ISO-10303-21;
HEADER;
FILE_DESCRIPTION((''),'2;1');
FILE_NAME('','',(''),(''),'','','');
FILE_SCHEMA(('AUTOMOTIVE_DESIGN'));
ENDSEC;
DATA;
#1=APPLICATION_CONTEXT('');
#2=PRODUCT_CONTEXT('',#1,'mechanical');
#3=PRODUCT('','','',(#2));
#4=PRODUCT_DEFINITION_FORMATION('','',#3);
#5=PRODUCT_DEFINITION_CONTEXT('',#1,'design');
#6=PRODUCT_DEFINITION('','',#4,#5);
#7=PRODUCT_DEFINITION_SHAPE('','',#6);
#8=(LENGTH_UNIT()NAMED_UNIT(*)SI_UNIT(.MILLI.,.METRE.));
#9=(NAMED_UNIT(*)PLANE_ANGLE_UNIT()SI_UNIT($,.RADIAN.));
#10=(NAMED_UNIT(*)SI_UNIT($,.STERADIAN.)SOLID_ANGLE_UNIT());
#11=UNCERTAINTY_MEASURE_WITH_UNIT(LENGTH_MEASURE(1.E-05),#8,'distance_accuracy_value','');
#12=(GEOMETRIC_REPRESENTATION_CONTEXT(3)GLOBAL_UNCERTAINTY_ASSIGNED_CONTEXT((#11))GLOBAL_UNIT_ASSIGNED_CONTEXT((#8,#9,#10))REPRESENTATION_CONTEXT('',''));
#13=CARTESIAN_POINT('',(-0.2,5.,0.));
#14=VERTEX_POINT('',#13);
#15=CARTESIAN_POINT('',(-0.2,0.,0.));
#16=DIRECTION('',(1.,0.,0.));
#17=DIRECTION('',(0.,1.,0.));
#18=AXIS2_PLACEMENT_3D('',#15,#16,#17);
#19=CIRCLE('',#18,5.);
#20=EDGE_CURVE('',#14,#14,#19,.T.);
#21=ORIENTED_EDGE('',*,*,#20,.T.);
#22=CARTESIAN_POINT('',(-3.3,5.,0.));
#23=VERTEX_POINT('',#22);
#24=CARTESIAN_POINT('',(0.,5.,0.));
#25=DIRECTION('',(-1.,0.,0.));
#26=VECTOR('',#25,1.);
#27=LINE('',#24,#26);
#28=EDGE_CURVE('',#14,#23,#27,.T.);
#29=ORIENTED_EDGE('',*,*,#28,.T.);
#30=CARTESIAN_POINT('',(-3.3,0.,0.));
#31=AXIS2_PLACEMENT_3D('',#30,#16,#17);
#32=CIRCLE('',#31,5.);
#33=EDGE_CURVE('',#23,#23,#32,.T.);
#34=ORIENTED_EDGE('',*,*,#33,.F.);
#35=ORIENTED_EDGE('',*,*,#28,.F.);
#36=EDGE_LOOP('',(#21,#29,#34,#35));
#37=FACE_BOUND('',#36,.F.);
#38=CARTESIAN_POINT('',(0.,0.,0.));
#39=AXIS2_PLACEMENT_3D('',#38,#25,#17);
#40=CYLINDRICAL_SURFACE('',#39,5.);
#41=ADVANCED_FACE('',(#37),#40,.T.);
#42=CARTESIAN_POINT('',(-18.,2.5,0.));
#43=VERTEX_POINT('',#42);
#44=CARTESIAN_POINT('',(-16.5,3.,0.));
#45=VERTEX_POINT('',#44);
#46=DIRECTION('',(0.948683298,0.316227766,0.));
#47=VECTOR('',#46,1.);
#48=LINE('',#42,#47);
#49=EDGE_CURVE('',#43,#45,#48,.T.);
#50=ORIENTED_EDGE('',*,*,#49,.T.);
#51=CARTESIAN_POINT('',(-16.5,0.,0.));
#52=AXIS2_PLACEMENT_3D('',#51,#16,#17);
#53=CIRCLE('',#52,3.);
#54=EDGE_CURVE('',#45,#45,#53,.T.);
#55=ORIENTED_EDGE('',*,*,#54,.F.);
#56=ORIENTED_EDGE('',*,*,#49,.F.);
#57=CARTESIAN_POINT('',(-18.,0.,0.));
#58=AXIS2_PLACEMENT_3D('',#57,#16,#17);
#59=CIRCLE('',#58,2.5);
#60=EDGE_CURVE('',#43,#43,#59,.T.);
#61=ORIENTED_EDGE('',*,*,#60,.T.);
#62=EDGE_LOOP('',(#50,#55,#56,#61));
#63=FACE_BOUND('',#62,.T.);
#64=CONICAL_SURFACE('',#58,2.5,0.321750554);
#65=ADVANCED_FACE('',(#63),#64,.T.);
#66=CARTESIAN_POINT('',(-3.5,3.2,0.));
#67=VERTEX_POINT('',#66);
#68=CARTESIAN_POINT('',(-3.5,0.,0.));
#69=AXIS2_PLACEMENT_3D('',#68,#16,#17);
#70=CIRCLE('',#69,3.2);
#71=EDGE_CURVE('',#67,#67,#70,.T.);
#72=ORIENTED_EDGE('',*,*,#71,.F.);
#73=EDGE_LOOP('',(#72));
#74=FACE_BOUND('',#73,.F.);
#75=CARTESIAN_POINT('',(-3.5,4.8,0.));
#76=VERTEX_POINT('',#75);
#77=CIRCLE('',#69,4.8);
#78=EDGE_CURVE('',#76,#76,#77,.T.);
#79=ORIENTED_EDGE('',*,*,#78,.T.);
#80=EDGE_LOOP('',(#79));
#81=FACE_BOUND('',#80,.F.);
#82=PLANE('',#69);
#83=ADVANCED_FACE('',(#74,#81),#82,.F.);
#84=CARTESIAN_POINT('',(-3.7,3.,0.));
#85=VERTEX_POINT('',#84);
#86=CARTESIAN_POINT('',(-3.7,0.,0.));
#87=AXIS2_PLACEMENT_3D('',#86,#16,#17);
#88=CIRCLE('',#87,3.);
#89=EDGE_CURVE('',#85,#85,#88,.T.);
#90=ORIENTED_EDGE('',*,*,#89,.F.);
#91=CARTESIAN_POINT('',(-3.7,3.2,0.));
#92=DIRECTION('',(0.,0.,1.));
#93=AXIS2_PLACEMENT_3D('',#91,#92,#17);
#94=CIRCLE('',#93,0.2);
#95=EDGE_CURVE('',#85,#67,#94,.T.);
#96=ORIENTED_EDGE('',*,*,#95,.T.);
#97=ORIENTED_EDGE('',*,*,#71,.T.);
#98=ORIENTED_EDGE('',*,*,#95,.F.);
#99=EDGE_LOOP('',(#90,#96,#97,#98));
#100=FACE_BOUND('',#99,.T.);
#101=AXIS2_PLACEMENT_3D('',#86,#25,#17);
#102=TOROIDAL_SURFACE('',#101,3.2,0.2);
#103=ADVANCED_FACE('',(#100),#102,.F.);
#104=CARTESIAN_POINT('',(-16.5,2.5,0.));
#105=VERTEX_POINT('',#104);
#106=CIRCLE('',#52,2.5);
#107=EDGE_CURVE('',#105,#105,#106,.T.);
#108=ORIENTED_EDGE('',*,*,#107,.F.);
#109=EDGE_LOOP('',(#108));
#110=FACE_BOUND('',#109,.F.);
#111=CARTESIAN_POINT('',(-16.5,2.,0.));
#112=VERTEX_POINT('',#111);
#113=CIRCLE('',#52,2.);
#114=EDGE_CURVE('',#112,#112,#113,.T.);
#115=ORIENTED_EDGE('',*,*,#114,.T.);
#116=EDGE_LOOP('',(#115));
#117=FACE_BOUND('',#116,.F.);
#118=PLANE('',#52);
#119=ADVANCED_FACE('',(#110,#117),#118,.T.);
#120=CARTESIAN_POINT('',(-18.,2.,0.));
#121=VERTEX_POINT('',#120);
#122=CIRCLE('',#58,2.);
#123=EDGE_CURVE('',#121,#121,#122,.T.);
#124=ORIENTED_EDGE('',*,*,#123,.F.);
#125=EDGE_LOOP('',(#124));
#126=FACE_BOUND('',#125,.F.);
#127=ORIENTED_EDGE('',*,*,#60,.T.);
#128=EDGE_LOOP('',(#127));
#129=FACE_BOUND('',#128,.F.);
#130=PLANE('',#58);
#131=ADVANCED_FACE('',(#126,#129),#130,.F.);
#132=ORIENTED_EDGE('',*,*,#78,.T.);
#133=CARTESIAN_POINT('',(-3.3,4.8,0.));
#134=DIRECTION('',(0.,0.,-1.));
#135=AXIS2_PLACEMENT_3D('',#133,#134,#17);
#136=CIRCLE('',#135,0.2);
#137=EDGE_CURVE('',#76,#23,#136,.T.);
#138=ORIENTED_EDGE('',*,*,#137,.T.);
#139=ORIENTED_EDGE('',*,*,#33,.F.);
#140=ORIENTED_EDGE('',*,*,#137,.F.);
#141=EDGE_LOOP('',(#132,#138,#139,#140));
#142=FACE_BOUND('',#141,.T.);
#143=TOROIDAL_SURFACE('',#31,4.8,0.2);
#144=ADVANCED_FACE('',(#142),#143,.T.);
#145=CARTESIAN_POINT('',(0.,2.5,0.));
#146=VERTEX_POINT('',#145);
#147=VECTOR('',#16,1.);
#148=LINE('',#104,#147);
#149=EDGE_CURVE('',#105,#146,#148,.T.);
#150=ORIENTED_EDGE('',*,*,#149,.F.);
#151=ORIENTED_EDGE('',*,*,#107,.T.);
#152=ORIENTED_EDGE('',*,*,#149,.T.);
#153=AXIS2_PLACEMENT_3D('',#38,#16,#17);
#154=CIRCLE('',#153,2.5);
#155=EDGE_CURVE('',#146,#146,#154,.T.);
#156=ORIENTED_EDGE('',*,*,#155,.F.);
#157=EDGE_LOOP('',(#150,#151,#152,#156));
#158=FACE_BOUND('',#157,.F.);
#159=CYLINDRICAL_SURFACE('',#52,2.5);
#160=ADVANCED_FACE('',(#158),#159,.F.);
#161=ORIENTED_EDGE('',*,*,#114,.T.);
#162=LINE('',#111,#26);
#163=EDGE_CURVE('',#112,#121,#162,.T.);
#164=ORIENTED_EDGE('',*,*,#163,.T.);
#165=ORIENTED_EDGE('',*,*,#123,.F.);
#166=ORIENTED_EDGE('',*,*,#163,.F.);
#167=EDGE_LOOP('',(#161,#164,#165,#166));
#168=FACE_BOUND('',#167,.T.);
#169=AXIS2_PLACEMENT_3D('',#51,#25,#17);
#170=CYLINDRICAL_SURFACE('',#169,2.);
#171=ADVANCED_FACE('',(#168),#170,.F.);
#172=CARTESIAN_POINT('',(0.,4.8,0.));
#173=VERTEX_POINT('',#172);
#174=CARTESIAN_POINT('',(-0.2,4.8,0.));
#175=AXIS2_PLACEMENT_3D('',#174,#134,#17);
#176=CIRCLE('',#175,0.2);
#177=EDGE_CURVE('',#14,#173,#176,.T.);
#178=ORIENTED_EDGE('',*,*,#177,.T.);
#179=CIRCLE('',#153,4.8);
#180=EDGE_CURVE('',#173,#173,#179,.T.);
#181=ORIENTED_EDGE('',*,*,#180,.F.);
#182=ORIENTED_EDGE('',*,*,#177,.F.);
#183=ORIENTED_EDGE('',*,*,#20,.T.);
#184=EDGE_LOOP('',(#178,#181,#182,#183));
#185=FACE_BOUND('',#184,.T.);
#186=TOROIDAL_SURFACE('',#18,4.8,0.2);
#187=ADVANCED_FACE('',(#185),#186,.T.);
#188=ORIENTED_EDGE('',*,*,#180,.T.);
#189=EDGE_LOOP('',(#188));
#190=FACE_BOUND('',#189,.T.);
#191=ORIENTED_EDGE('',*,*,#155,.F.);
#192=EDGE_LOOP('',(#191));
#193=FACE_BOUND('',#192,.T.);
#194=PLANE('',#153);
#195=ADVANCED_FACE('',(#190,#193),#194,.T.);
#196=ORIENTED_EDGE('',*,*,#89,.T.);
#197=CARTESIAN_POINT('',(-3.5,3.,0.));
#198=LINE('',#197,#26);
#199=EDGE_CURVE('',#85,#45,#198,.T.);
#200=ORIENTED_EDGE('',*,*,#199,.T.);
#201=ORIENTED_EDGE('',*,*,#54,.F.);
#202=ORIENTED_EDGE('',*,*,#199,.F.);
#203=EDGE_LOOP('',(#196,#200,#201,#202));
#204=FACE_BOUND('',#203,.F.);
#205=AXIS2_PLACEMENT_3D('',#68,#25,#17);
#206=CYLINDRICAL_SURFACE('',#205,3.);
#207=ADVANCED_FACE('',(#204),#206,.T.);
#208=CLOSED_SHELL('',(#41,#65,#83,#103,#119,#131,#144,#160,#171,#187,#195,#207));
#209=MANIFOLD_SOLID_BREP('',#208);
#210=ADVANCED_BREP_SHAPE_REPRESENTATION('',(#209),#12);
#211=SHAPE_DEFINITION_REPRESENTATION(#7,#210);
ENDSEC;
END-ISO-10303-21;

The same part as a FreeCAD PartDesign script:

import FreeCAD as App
import Part
import Sketcher
from FreeCAD import Vector


def edges_at(feature, points):
    """Names of the edges that pass closest to the given points."""
    edges = feature.Shape.Edges
    near = lambda p: min(range(len(edges)), key=lambda i: edges[i].distToShape(Part.Vertex(*p))[0])
    return sorted({f"Edge{near(p) + 1}" for p in points})

doc = App.newDocument("Part")
body = doc.addObject("PartDesign::Body", "Body")

# Sketch on XY plane
sketch1 = doc.addObject("Sketcher::SketchObject", "Sketch")
body.addObject(sketch1)
sketch1.AttachmentSupport = (doc.XY_Plane, [""])
sketch1.MapMode = "FlatFace"
sketch1.addGeometry(Part.LineSegment(Vector(-16.5, 2, 0), Vector(-16.5, 2.5, 0)), False)
sketch1.addGeometry(Part.LineSegment(Vector(-16.5, 2.5, 0), Vector(0, 2.5, 0)), False)
sketch1.addGeometry(Part.LineSegment(Vector(0, 2.5, 0), Vector(0, 5, 0)), False)
sketch1.addGeometry(Part.LineSegment(Vector(0, 5, 0), Vector(-3.5, 5, 0)), False)
sketch1.addGeometry(Part.LineSegment(Vector(-3.5, 5, 0), Vector(-3.5, 3, 0)), False)
sketch1.addGeometry(Part.LineSegment(Vector(-3.5, 3, 0), Vector(-16.5, 3, 0)), False)
sketch1.addGeometry(Part.LineSegment(Vector(-16.5, 3, 0), Vector(-18, 2.5, 0)), False)
sketch1.addGeometry(Part.LineSegment(Vector(-18, 2.5, 0), Vector(-18, 2, 0)), False)
sketch1.addGeometry(Part.LineSegment(Vector(-18, 2, 0), Vector(-16.5, 2, 0)), False)
sketch1.addConstraint(Sketcher.Constraint("Coincident", 0, 2, 1, 1))
sketch1.addConstraint(Sketcher.Constraint("Coincident", 1, 2, 2, 1))
sketch1.addConstraint(Sketcher.Constraint("Coincident", 2, 2, 3, 1))
sketch1.addConstraint(Sketcher.Constraint("Coincident", 3, 2, 4, 1))
sketch1.addConstraint(Sketcher.Constraint("Coincident", 4, 2, 5, 1))
sketch1.addConstraint(Sketcher.Constraint("Coincident", 5, 2, 6, 1))
sketch1.addConstraint(Sketcher.Constraint("Coincident", 6, 2, 7, 1))
sketch1.addConstraint(Sketcher.Constraint("Coincident", 7, 2, 8, 1))
sketch1.addConstraint(Sketcher.Constraint("Coincident", 8, 2, 0, 1))
sketch1.addConstraint(Sketcher.Constraint("Vertical", 0))
sketch1.addConstraint(Sketcher.Constraint("Horizontal", 1))
sketch1.addConstraint(Sketcher.Constraint("Vertical", 2))
sketch1.addConstraint(Sketcher.Constraint("Horizontal", 3))
sketch1.addConstraint(Sketcher.Constraint("Vertical", 4))
sketch1.addConstraint(Sketcher.Constraint("Horizontal", 5))
sketch1.addConstraint(Sketcher.Constraint("Vertical", 7))
sketch1.addConstraint(Sketcher.Constraint("Horizontal", 8))
sketch1.addConstraint(Sketcher.Constraint("PointOnObject", 1, 2, -2))
sketch1.addConstraint(Sketcher.Constraint("Horizontal", 1, 2, 6, 2))
sketch1.addConstraint(Sketcher.Constraint("Vertical", 0, 2, 5, 2))
sketch1.addConstraint(Sketcher.Constraint("DistanceX", 3, 2, 3, 1, 3.5))
sketch1.addConstraint(Sketcher.Constraint("DistanceX", 8, 1, 8, 2, 1.5))
sketch1.addConstraint(Sketcher.Constraint("DistanceY", -1, 1, 2, 2, 5.0))
sketch1.addConstraint(Sketcher.Constraint("DistanceX", 6, 2, -1, 1, 18.0))
sketch1.addConstraint(Sketcher.Constraint("DistanceY", 4, 2, 4, 1, 2.0))
sketch1.addConstraint(Sketcher.Constraint("DistanceY", 0, 1, 0, 2, 0.5))
sketch1.addConstraint(Sketcher.Constraint("DistanceY", 2, 1, 2, 2, 2.5))
revolution = doc.addObject("PartDesign::Revolution", "Revolution")
body.addObject(revolution)
revolution.Profile = sketch1
revolution.ReferenceAxis = (sketch1, ["H_Axis"])
revolution.Angle = 360
doc.recompute()

fillet = doc.addObject("PartDesign::Fillet", "Fillet")
body.addObject(fillet)
fillet.Base = (revolution, edges_at(revolution, [(-3.5, -3, 0), (-3.5, -5, 0), (0, -5, 0)]))
fillet.Radius = 0.2

doc.recompute()
